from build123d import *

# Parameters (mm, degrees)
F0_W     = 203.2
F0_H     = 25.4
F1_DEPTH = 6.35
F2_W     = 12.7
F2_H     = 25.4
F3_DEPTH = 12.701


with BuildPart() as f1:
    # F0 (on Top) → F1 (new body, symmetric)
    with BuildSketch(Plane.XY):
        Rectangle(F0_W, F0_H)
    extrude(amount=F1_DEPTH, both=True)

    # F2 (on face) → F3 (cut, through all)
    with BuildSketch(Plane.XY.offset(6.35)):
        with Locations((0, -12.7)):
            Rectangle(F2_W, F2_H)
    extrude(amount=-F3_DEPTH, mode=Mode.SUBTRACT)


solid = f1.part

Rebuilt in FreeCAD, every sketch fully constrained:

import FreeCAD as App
import Part
import Sketcher
Q = App.Units.Quantity


def add_polygon(sketch, points):
    """Adds a closed chain of lines whose ends are joined by coincident constraints."""
    first, n = sketch.GeometryCount, len(points)
    for a, b in zip(points, points[1:] + points[:1]):
        sketch.addGeometry(Part.LineSegment(App.Vector(*a, 0), App.Vector(*b, 0)), False)
    for i in range(n):
        sketch.addConstraint(Sketcher.Constraint("Coincident", first + i, 2, first + (i + 1) % n, 1))

doc = App.newDocument("Part")
body = doc.addObject("PartDesign::Body", "Body")

sketch1 = body.newObject("Sketcher::SketchObject", "Sketch")
sketch1.AttachmentSupport = (doc.getObject("XY_Plane"), [""])
sketch1.MapMode = "FlatFace"
add_polygon(sketch1, [(-102, 13), (-102, -13), (102, -13), (102, 13)])
sketch1.addConstraint([
    Sketcher.Constraint("Vertical", 0),
    Sketcher.Constraint("Horizontal", 1),
    Sketcher.Constraint("Vertical", 2),
    Sketcher.Constraint("Horizontal", 3),
    Sketcher.Constraint("Symmetric", 0, 2, 2, 2, -1, 1),
    Sketcher.Constraint("DistanceX", 1, 1, 1, 2, Q("8 in")),
    Sketcher.Constraint("DistanceY", 0, 2, 0, 1, Q("1 in")),
])
pad1 = body.newObject("PartDesign::Pad", "Pad")
pad1.Profile = sketch1
pad1.Length = Q("0.5 in")
pad1.Midplane = True

sketch2 = body.newObject("Sketcher::SketchObject", "Sketch001")
sketch2.AttachmentSupport = (doc.getObject("XY_Plane"), [""])
sketch2.MapMode = "FlatFace"
sketch2.AttachmentOffset = App.Placement(App.Vector(0, 0, 0.25 * 25.4), App.Rotation())
add_polygon(sketch2, [(-6, 0), (-6, -25), (6, -25), (6, 0)])
sketch2.addConstraint([
    Sketcher.Constraint("Vertical", 0),
    Sketcher.Constraint("Horizontal", 1),
    Sketcher.Constraint("Vertical", 2),
    Sketcher.Constraint("Horizontal", 3),
    Sketcher.Constraint("Symmetric", 2, 2, 3, 2, -1, 1),
    Sketcher.Constraint("DistanceY", 0, 2, 0, 1, Q("1 in")),
    Sketcher.Constraint("DistanceX", 1, 1, 1, 2, Q("0.5 in")),
])
pocket1 = body.newObject("PartDesign::Pocket", "Pocket")
pocket1.Profile = sketch2
pocket1.Type = "ThroughAll"

doc.recompute()
